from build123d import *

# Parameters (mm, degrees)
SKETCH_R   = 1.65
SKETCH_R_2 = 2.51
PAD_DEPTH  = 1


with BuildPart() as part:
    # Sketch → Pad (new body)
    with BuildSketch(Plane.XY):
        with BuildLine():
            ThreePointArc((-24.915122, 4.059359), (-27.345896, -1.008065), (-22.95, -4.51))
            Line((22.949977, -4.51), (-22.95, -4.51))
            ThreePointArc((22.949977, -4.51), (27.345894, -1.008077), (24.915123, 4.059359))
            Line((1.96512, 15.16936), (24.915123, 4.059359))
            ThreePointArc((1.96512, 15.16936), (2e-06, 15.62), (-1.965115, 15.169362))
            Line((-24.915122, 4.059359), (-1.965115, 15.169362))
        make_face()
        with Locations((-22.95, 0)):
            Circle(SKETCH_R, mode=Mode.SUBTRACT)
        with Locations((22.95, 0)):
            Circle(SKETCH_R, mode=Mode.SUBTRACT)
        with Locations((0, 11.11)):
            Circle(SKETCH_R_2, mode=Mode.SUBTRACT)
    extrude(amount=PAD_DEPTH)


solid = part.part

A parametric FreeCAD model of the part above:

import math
import FreeCAD as App
import Part
import Sketcher
from FreeCAD import Vector

doc = App.newDocument("Part")
body = doc.addObject("PartDesign::Body", "Body")

sketch1 = body.newObject("Sketcher::SketchObject", "Sketch")
sketch1.AttachmentSupport = (doc.getObject("XY_Plane"), [""])
sketch1.MapMode = "FlatFace"
sketch1.addGeometry([
    Part.ArcOfCircle(Part.Circle(Vector(-22.9, 0, 0), Vector(0, 0, 1), 4.5), math.radians(116), math.radians(270)),
    Part.LineSegment(Vector(-22.9, -4.5, 0), Vector(22.9, -4.5, 0)),
    Part.ArcOfCircle(Part.Circle(Vector(23, 0, 0), Vector(0, 0, 1), 4.5), math.radians(-90), math.radians(64)),
    Part.LineSegment(Vector(24.9, 4.1, 0), Vector(2, 15.2, 0)),
    Part.ArcOfCircle(Part.Circle(Vector(0, 11.1, 0), Vector(0, 0, 1), 4.5), math.radians(64), math.radians(116)),
    Part.LineSegment(Vector(-2, 15.2, 0), Vector(-24.9, 4.1, 0)),
    Part.Circle(Vector(-22.9, 0, 0), Vector(0, 0, 1), 1.6),
    Part.Circle(Vector(22.9, 0, 0), Vector(0, 0, 1), 1.6),
    Part.Circle(Vector(0, 11.1, 0), Vector(0, 0, 1), 2.5),
], False)
sketch1.addConstraint([
    Sketcher.Constraint("Tangent", 0, 2, 1, 1),
    Sketcher.Constraint("Coincident", 1, 2, 2, 1),
    Sketcher.Constraint("Tangent", 2, 2, 3, 1),
    Sketcher.Constraint("Tangent", 3, 2, 4, 1),
    Sketcher.Constraint("Tangent", 4, 2, 5, 1),
    Sketcher.Constraint("Tangent", 5, 2, 0, 1),
    Sketcher.Constraint("Horizontal", 1),
    Sketcher.Constraint("Coincident", 6, 3, 0, 3),
    Sketcher.Constraint("Coincident", 7, 3, 2, 3),
    Sketcher.Constraint("Coincident", 8, 3, 4, 3),
    Sketcher.Constraint("Equal", 0, 2),
    Sketcher.Constraint("Equal", 2, 4),
    Sketcher.Constraint("Equal", 6, 7),
    Sketcher.Constraint("Symmetric", 0, 3, 2, 3, -1, 1),
    Sketcher.Constraint("PointOnObject", 4, 3, -2),
    Sketcher.Constraint("Diameter", 6, 3.3),
    Sketcher.Constraint("Diameter", 8, 5.02),
    Sketcher.Constraint("Radius", 0, 4.51),
    Sketcher.Constraint("DistanceX", 0, 3, 2, 3, 45.9),
    Sketcher.Constraint("DistanceY", -1, 1, 4, 3, 11.110002),
    Sketcher.Constraint("DistanceX", 1, 1, 1, 2, 45.899977),
])
pad1 = body.newObject("PartDesign::Pad", "Pad")
pad1.Profile = sketch1
pad1.Length = 1

doc.recompute()
